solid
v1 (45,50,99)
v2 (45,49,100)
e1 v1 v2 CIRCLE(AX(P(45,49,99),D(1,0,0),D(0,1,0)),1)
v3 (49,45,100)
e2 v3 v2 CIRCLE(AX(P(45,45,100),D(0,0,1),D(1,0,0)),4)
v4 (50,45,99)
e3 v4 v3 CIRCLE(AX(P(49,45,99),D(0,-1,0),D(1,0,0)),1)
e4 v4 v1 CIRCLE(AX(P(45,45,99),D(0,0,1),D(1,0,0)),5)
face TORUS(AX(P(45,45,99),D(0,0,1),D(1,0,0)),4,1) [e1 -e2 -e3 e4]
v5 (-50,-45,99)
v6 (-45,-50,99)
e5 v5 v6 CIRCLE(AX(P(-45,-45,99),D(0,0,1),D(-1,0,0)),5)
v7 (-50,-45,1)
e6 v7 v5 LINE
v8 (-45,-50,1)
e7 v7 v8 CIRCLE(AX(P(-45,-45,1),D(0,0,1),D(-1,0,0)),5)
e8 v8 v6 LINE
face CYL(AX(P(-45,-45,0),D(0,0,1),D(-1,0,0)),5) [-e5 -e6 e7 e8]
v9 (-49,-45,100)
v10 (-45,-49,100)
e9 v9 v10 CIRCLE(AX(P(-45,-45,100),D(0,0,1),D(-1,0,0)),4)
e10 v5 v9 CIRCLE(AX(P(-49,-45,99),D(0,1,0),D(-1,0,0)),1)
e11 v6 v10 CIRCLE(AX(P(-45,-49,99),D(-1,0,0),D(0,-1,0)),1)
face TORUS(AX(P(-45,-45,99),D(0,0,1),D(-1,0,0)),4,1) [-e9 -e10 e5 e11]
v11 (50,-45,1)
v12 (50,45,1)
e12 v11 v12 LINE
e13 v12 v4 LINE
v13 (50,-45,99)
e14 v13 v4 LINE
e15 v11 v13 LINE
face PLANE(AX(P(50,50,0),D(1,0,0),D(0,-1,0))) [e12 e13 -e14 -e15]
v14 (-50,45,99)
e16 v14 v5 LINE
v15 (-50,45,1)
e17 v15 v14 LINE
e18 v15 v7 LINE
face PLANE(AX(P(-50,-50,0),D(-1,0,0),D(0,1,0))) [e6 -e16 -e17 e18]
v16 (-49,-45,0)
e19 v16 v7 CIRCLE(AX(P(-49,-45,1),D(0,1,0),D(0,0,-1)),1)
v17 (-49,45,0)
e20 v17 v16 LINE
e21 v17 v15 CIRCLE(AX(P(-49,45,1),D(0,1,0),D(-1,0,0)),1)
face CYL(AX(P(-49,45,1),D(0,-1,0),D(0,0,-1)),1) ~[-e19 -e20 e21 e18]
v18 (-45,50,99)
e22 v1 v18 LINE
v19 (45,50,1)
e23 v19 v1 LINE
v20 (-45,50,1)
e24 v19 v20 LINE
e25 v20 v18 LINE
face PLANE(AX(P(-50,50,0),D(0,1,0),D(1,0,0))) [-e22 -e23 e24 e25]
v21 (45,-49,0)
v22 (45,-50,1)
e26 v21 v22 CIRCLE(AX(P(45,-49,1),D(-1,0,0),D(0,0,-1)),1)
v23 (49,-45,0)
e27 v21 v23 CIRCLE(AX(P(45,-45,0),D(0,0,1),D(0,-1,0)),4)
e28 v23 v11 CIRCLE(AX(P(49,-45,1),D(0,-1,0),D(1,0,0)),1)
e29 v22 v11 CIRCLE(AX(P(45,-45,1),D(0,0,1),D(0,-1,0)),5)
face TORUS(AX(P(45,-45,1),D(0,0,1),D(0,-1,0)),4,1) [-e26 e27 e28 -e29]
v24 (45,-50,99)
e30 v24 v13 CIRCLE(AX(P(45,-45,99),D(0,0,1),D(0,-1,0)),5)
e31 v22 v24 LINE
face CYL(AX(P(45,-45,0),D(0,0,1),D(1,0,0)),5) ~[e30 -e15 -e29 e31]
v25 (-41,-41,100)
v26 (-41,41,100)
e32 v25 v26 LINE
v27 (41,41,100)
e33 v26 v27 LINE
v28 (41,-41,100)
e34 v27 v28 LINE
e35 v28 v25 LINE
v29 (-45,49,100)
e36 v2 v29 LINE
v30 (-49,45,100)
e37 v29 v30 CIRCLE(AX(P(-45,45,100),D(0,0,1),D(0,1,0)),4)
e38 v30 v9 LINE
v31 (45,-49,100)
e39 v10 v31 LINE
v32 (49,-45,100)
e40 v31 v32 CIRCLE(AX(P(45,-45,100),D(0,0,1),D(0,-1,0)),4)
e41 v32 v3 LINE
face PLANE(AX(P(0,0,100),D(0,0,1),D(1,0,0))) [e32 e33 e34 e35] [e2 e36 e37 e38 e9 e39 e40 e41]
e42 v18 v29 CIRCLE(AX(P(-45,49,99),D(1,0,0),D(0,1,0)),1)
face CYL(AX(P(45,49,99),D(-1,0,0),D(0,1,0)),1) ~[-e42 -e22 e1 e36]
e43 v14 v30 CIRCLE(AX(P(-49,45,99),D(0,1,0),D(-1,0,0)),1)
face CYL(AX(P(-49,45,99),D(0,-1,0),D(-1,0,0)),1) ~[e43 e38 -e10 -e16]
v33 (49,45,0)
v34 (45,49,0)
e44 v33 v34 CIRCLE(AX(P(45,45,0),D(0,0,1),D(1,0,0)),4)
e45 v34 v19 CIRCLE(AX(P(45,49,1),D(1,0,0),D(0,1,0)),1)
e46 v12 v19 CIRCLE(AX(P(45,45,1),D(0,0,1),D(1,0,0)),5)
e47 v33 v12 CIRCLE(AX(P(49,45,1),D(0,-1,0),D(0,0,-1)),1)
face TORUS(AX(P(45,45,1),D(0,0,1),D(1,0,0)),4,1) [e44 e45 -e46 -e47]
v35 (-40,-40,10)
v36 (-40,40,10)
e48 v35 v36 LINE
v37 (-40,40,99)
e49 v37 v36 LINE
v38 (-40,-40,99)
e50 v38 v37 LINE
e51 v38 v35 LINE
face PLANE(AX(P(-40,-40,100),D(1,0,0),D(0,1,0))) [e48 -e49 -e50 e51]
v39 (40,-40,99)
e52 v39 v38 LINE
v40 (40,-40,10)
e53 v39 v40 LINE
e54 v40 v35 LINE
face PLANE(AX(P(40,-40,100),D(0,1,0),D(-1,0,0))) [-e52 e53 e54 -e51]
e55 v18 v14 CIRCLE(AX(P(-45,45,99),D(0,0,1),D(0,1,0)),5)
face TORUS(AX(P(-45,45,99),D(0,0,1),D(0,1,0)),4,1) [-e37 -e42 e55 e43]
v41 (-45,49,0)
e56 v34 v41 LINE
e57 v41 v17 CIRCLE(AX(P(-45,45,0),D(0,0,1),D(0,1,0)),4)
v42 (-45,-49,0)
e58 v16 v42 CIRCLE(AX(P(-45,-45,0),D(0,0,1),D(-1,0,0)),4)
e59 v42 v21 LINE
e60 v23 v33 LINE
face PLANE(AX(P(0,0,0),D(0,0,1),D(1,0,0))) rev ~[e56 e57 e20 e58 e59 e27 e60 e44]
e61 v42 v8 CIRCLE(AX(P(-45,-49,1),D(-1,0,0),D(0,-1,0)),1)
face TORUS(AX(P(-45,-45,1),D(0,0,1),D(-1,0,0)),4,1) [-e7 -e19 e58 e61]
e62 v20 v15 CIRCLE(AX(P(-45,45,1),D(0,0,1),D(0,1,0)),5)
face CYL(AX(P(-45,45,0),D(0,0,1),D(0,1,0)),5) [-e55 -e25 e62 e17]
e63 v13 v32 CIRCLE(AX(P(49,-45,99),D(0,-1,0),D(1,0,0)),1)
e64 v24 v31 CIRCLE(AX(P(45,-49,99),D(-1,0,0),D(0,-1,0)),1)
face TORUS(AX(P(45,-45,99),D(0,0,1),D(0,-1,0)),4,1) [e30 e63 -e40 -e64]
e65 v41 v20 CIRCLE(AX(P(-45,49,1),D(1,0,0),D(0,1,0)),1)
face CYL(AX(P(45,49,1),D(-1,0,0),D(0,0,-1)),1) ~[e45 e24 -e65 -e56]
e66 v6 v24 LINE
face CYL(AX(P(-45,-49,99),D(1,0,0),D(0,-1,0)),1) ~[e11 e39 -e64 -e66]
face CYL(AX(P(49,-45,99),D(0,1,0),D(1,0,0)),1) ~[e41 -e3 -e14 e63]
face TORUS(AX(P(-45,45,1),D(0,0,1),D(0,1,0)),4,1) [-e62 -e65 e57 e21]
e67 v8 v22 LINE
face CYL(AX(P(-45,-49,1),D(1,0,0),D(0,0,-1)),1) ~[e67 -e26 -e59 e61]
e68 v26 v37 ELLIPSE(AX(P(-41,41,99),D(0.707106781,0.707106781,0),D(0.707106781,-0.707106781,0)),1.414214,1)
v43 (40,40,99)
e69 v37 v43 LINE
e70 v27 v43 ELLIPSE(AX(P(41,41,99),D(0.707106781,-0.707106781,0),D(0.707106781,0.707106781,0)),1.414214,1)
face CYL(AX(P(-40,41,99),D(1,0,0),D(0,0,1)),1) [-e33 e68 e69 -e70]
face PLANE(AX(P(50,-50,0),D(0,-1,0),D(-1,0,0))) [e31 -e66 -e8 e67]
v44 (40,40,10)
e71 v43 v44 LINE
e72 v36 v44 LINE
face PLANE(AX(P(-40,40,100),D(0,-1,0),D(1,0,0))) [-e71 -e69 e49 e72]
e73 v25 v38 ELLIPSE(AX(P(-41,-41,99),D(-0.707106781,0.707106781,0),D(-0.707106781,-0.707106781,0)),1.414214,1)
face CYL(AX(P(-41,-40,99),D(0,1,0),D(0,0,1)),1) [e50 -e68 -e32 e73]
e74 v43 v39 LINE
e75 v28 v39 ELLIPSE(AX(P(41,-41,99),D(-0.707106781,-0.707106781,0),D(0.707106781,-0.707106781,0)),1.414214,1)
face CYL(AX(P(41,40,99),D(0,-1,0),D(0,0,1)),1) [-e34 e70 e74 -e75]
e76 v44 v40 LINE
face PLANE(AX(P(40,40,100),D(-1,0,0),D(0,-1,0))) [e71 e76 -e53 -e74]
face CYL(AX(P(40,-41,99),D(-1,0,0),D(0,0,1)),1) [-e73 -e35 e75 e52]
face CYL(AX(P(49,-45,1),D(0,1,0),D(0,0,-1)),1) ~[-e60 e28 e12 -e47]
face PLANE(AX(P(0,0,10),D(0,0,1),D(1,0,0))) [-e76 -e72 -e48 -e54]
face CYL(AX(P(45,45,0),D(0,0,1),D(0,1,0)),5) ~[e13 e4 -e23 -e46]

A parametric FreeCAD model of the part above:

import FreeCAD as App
import Part
import Sketcher
from FreeCAD import Vector


def edges_at(feature, points):
    """Names of the edges that pass closest to the given points."""
    edges = feature.Shape.Edges
    near = lambda p: min(range(len(edges)), key=lambda i: edges[i].distToShape(Part.Vertex(*p))[0])
    return sorted({f"Edge{near(p) + 1}" for p in points})


def add_polygon(sketch, points):
    """Adds a closed chain of lines whose ends are joined by coincident constraints."""
    first, n = sketch.GeometryCount, len(points)
    for a, b in zip(points, points[1:] + points[:1]):
        sketch.addGeometry(Part.LineSegment(App.Vector(*a, 0), App.Vector(*b, 0)), False)
    for i in range(n):
        sketch.addConstraint(Sketcher.Constraint("Coincident", first + i, 2, first + (i + 1) % n, 1))

doc = App.newDocument("Part")
body = doc.addObject("PartDesign::Body", "Body")

# Sketch on XY plane
sketch1 = body.newObject("Sketcher::SketchObject", "Sketch")
sketch1.AttachmentSupport = (doc.getObject("XY_Plane"), [""])
sketch1.MapMode = "FlatFace"
add_polygon(sketch1, [(50, 50), (-50, 50), (-50, -50), (50, -50)])  # lines 0-3
sketch1.addConstraint(Sketcher.Constraint("Horizontal", 0))
sketch1.addConstraint(Sketcher.Constraint("Vertical", 1))
sketch1.addConstraint(Sketcher.Constraint("Horizontal", 2))
sketch1.addConstraint(Sketcher.Constraint("Vertical", 3))
sketch1.addConstraint(Sketcher.Constraint("Symmetric", 0, 2, 2, 2, -1, 1))
sketch1.addConstraint(Sketcher.Constraint("Equal", 2, 1))
sketch1.addConstraint(Sketcher.Constraint("DistanceX", 0, 2, 0, 1, 100.0))
pad1 = body.newObject("PartDesign::Pad", "Pad")
pad1.Profile = sketch1
pad1.Length = 100

# Sketch on XY plane
sketch2 = body.newObject("Sketcher::SketchObject", "Sketch001")
sketch2.AttachmentSupport = (doc.getObject("XY_Plane"), [""])
sketch2.MapMode = "FlatFace"
sketch2.AttachmentOffset = App.Placement(Vector(0, 0, 100), App.Rotation())
add_polygon(sketch2, [(40, 40), (-40, 40), (-40, -40), (40, -40)])  # lines 0-3
sketch2.addConstraint(Sketcher.Constraint("Horizontal", 0))
sketch2.addConstraint(Sketcher.Constraint("Vertical", 1))
sketch2.addConstraint(Sketcher.Constraint("Horizontal", 2))
sketch2.addConstraint(Sketcher.Constraint("Vertical", 3))
sketch2.addConstraint(Sketcher.Constraint("Symmetric", 0, 2, 2, 2, -1, 1))
sketch2.addConstraint(Sketcher.Constraint("Equal", 2, 1))
sketch2.addConstraint(Sketcher.Constraint("DistanceX", 0, 2, 0, 1, 80.0))
pocket1 = body.newObject("PartDesign::Pocket", "Pocket")
pocket1.Profile = sketch2
pocket1.Length = 90
doc.recompute()

fillet = body.newObject("PartDesign::Fillet", "Fillet")
fillet.Base = (pocket1, edges_at(pocket1, [
    (-50, -50, 50),
    (50, -50, 50),
    (50, 50, 50),
    (-50, 50, 50),
]))
fillet.Radius = 5
doc.recompute()

fillet2 = body.newObject("PartDesign::Fillet", "Fillet001")
fillet2.Base = (fillet, edges_at(fillet, [
    (-48.535, 48.535, 100),
    (-50, 0, 100),
    (-48.535, -48.535, 100),
    (0, -50, 100),
    (48.535, -48.535, 100),
    (50, 0, 100),
    (48.535, 48.535, 100),
    (0, 50, 100),
    (0, 40, 100),
    (40, 0, 100),
    (0, -40, 100),
    (-40, 0, 100),
    (-48.535, 48.535, 0),
    (0, 50, 0),
    (48.535, 48.535, 0),
    (50, 0, 0),
    (48.535, -48.535, 0),
    (0, -50, 0),
    (-48.535, -48.535, 0),
    (-50, 0, 0),
]))
fillet2.Radius = 1

doc.recompute()
